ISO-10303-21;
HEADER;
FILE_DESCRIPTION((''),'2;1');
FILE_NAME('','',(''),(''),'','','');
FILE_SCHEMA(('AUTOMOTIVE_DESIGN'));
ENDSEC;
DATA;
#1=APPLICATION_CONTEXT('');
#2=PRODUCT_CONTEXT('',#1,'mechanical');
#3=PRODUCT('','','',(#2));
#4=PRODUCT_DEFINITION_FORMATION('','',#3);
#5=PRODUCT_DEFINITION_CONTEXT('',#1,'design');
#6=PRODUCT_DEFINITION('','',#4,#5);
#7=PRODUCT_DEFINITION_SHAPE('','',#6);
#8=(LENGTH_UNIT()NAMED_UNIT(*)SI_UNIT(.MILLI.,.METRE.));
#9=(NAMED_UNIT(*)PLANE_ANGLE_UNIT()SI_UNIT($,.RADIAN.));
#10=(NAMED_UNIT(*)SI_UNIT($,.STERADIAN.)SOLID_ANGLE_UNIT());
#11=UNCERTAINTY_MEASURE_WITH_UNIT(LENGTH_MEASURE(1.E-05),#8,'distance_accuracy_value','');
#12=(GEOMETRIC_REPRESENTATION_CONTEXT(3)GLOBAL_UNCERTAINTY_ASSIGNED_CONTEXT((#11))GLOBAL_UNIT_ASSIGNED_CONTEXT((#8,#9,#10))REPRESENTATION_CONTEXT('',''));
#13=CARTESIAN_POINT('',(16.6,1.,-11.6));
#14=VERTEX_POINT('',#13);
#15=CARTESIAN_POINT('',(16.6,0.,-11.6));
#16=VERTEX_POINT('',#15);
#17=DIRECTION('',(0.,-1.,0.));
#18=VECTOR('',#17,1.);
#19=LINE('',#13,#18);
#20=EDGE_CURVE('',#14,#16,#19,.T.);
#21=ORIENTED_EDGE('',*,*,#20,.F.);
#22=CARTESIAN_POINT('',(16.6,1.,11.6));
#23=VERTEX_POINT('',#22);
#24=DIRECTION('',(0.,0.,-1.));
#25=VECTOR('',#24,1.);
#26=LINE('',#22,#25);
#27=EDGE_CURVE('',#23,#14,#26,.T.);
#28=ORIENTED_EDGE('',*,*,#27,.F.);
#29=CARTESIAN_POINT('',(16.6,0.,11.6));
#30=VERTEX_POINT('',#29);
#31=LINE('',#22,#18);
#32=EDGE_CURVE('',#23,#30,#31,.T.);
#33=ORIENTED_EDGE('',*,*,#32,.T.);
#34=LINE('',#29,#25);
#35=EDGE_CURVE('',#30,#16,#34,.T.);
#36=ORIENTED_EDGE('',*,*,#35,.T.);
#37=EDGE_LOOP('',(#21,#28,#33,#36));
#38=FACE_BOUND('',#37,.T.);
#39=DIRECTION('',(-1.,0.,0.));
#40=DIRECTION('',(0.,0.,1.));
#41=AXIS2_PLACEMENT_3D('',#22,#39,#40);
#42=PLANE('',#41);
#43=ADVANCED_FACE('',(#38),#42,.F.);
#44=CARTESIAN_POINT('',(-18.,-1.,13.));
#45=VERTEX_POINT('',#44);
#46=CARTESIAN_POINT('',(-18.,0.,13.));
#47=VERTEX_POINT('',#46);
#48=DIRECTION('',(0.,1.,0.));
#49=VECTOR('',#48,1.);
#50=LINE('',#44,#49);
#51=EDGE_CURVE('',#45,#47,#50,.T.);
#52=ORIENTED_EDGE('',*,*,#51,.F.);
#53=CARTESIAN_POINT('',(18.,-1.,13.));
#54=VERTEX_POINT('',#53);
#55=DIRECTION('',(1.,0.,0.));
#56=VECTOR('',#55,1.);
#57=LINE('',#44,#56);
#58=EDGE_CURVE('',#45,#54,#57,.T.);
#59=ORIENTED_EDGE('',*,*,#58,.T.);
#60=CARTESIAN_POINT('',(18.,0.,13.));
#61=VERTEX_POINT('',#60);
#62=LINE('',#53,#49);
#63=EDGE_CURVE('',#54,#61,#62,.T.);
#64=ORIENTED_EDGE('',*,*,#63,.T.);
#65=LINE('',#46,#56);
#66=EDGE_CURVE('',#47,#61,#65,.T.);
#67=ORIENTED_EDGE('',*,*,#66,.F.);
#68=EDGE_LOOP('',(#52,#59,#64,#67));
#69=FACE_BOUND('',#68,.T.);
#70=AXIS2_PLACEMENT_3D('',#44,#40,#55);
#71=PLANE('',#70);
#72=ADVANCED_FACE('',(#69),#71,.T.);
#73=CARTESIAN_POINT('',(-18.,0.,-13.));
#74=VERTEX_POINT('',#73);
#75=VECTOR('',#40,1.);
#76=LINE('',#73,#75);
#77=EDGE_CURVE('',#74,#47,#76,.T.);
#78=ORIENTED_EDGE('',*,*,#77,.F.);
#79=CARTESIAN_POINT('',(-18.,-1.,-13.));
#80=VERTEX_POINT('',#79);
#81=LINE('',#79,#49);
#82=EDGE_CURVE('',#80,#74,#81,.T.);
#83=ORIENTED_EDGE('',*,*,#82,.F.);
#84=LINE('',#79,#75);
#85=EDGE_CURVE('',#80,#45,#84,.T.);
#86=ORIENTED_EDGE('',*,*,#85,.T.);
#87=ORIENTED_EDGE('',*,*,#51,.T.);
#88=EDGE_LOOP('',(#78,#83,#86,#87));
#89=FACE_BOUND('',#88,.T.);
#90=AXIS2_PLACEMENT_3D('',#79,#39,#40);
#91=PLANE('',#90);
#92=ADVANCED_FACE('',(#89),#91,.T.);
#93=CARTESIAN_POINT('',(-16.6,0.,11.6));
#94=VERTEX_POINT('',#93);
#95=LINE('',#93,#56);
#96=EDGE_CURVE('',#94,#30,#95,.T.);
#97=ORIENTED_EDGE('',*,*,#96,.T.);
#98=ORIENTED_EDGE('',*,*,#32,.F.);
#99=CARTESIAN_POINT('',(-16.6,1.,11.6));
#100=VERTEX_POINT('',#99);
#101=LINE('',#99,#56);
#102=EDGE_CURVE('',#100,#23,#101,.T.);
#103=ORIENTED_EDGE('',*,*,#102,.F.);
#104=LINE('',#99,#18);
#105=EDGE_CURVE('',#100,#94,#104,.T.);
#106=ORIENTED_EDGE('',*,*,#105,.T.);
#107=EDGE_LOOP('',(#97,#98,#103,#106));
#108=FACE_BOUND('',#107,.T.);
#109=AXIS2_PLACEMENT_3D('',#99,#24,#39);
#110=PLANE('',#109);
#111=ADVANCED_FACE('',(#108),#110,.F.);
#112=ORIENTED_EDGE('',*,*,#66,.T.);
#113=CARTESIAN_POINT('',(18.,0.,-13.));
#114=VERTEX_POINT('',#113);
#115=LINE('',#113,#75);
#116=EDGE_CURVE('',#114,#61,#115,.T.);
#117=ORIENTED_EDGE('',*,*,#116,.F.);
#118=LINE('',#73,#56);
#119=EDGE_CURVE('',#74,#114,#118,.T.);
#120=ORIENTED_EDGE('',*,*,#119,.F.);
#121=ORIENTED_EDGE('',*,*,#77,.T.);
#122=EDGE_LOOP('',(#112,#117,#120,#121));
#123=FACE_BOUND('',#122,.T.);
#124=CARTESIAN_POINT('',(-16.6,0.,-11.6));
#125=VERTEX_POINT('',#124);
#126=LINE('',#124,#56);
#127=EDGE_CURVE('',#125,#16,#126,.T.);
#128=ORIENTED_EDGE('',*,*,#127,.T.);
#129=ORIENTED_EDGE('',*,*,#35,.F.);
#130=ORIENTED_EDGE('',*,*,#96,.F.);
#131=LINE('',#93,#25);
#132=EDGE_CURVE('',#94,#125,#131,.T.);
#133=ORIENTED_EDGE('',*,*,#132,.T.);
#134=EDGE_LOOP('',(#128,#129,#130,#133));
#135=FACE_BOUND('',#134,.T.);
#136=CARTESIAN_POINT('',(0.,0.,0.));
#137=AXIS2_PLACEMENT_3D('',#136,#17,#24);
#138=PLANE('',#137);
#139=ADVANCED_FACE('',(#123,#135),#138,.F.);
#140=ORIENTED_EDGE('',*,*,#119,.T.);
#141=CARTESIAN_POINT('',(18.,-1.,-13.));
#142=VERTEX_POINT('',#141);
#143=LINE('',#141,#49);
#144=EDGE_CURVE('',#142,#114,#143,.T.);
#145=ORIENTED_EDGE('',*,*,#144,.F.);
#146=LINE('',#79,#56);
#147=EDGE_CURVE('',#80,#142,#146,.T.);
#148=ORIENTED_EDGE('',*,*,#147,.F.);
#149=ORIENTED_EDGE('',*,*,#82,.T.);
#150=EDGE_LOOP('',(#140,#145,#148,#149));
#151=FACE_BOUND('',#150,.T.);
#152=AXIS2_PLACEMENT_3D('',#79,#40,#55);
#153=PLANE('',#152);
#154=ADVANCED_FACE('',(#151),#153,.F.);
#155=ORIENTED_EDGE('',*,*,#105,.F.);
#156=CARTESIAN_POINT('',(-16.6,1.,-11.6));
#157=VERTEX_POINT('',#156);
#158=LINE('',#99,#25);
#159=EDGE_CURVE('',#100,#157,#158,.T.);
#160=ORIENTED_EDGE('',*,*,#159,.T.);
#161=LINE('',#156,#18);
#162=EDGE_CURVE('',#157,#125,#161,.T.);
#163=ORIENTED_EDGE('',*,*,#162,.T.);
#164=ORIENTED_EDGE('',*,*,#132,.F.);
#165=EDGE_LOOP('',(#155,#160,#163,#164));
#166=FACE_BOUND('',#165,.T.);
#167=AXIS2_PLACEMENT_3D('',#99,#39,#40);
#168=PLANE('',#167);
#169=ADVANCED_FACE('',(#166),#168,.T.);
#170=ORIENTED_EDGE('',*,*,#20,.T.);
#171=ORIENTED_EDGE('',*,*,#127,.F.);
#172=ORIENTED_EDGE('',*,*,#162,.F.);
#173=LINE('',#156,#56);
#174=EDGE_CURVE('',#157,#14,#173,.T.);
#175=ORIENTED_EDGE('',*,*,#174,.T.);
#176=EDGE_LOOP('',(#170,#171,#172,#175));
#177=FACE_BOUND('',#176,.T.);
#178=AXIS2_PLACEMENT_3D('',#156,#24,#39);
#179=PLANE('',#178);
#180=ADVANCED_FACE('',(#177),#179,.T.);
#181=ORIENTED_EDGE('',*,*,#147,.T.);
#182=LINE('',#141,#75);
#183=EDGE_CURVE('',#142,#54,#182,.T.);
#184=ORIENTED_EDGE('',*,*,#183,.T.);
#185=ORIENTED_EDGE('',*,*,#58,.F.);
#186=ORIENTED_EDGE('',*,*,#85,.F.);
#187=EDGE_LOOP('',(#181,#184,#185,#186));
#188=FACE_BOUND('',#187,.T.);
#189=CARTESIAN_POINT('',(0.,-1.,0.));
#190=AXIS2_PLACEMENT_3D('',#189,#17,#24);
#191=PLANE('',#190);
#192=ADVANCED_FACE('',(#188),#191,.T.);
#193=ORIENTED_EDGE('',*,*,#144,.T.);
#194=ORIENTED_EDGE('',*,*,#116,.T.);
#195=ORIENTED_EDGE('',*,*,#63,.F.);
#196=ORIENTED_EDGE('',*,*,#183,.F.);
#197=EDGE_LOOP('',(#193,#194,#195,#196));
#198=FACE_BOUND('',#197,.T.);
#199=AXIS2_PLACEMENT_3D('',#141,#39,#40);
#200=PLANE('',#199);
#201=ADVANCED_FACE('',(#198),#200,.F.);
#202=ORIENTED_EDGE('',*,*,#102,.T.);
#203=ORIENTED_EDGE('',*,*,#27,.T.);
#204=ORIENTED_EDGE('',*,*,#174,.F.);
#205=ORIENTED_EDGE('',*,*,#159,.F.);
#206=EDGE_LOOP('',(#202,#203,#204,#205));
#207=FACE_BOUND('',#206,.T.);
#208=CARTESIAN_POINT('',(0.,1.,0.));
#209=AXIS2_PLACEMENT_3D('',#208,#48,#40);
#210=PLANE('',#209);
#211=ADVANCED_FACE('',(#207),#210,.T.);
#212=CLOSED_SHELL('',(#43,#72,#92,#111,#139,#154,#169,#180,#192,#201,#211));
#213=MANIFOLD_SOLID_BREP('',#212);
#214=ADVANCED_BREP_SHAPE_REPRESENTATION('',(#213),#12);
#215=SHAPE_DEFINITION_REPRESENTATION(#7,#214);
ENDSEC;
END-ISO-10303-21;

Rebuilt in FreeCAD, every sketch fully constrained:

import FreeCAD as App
import Part
import Sketcher

doc = App.newDocument("Part")
body = doc.addObject("PartDesign::Body", "Body")

# Sketch on XZ plane
sketch1 = body.newObject("Sketcher::SketchObject", "Sketch")
sketch1.AttachmentSupport = (doc.getObject("XZ_Plane"), [""])
sketch1.MapMode = "FlatFace"
sketch1.addGeometry([
    Part.LineSegment(App.Vector(-18, -13, 0), App.Vector(-18, 13, 0)),
    Part.LineSegment(App.Vector(-18, 13, 0), App.Vector(18, 13, 0)),
    Part.LineSegment(App.Vector(18, 13, 0), App.Vector(18, -13, 0)),
    Part.LineSegment(App.Vector(18, -13, 0), App.Vector(-18, -13, 0)),
], False)
sketch1.addConstraint([
    Sketcher.Constraint("Coincident", 0, 2, 1, 1),
    Sketcher.Constraint("Coincident", 1, 2, 2, 1),
    Sketcher.Constraint("Coincident", 2, 2, 3, 1),
    Sketcher.Constraint("Coincident", 3, 2, 0, 1),
    Sketcher.Constraint("Vertical", 0),
    Sketcher.Constraint("Horizontal", 1),
    Sketcher.Constraint("Vertical", 2),
    Sketcher.Constraint("Horizontal", 3),
    Sketcher.Constraint("Symmetric", 0, 2, 2, 2, -1, 1),
    Sketcher.Constraint("DistanceX", 1, 1, 1, 2, 36.0),
    Sketcher.Constraint("DistanceY", 0, 1, 0, 2, 26.0),
])
pad1 = body.newObject("PartDesign::Pad", "Pad")
pad1.Profile = sketch1
pad1.Length = 1

# Sketch on XZ plane
sketch2 = body.newObject("Sketcher::SketchObject", "Sketch001")
sketch2.AttachmentSupport = (doc.getObject("XZ_Plane"), [""])
sketch2.MapMode = "FlatFace"
sketch2.addGeometry([
    Part.LineSegment(App.Vector(-16.6, -11.6, 0), App.Vector(-16.6, 11.6, 0)),
    Part.LineSegment(App.Vector(-16.6, 11.6, 0), App.Vector(16.6, 11.6, 0)),
    Part.LineSegment(App.Vector(16.6, 11.6, 0), App.Vector(16.6, -11.6, 0)),
    Part.LineSegment(App.Vector(16.6, -11.6, 0), App.Vector(-16.6, -11.6, 0)),
], False)
sketch2.addConstraint([
    Sketcher.Constraint("Coincident", 0, 2, 1, 1),
    Sketcher.Constraint("Coincident", 1, 2, 2, 1),
    Sketcher.Constraint("Coincident", 2, 2, 3, 1),
    Sketcher.Constraint("Coincident", 3, 2, 0, 1),
    Sketcher.Constraint("Vertical", 0),
    Sketcher.Constraint("Horizontal", 1),
    Sketcher.Constraint("Vertical", 2),
    Sketcher.Constraint("Horizontal", 3),
    Sketcher.Constraint("Symmetric", 0, 2, 2, 2, -1, 1),
    Sketcher.Constraint("DistanceX", 1, 1, 1, 2, 33.2),
    Sketcher.Constraint("DistanceY", 0, 1, 0, 2, 23.2),
])
pad2 = body.newObject("PartDesign::Pad", "Pad001")
pad2.Profile = sketch2
pad2.Length = 1
pad2.Reversed = True

doc.recompute()
